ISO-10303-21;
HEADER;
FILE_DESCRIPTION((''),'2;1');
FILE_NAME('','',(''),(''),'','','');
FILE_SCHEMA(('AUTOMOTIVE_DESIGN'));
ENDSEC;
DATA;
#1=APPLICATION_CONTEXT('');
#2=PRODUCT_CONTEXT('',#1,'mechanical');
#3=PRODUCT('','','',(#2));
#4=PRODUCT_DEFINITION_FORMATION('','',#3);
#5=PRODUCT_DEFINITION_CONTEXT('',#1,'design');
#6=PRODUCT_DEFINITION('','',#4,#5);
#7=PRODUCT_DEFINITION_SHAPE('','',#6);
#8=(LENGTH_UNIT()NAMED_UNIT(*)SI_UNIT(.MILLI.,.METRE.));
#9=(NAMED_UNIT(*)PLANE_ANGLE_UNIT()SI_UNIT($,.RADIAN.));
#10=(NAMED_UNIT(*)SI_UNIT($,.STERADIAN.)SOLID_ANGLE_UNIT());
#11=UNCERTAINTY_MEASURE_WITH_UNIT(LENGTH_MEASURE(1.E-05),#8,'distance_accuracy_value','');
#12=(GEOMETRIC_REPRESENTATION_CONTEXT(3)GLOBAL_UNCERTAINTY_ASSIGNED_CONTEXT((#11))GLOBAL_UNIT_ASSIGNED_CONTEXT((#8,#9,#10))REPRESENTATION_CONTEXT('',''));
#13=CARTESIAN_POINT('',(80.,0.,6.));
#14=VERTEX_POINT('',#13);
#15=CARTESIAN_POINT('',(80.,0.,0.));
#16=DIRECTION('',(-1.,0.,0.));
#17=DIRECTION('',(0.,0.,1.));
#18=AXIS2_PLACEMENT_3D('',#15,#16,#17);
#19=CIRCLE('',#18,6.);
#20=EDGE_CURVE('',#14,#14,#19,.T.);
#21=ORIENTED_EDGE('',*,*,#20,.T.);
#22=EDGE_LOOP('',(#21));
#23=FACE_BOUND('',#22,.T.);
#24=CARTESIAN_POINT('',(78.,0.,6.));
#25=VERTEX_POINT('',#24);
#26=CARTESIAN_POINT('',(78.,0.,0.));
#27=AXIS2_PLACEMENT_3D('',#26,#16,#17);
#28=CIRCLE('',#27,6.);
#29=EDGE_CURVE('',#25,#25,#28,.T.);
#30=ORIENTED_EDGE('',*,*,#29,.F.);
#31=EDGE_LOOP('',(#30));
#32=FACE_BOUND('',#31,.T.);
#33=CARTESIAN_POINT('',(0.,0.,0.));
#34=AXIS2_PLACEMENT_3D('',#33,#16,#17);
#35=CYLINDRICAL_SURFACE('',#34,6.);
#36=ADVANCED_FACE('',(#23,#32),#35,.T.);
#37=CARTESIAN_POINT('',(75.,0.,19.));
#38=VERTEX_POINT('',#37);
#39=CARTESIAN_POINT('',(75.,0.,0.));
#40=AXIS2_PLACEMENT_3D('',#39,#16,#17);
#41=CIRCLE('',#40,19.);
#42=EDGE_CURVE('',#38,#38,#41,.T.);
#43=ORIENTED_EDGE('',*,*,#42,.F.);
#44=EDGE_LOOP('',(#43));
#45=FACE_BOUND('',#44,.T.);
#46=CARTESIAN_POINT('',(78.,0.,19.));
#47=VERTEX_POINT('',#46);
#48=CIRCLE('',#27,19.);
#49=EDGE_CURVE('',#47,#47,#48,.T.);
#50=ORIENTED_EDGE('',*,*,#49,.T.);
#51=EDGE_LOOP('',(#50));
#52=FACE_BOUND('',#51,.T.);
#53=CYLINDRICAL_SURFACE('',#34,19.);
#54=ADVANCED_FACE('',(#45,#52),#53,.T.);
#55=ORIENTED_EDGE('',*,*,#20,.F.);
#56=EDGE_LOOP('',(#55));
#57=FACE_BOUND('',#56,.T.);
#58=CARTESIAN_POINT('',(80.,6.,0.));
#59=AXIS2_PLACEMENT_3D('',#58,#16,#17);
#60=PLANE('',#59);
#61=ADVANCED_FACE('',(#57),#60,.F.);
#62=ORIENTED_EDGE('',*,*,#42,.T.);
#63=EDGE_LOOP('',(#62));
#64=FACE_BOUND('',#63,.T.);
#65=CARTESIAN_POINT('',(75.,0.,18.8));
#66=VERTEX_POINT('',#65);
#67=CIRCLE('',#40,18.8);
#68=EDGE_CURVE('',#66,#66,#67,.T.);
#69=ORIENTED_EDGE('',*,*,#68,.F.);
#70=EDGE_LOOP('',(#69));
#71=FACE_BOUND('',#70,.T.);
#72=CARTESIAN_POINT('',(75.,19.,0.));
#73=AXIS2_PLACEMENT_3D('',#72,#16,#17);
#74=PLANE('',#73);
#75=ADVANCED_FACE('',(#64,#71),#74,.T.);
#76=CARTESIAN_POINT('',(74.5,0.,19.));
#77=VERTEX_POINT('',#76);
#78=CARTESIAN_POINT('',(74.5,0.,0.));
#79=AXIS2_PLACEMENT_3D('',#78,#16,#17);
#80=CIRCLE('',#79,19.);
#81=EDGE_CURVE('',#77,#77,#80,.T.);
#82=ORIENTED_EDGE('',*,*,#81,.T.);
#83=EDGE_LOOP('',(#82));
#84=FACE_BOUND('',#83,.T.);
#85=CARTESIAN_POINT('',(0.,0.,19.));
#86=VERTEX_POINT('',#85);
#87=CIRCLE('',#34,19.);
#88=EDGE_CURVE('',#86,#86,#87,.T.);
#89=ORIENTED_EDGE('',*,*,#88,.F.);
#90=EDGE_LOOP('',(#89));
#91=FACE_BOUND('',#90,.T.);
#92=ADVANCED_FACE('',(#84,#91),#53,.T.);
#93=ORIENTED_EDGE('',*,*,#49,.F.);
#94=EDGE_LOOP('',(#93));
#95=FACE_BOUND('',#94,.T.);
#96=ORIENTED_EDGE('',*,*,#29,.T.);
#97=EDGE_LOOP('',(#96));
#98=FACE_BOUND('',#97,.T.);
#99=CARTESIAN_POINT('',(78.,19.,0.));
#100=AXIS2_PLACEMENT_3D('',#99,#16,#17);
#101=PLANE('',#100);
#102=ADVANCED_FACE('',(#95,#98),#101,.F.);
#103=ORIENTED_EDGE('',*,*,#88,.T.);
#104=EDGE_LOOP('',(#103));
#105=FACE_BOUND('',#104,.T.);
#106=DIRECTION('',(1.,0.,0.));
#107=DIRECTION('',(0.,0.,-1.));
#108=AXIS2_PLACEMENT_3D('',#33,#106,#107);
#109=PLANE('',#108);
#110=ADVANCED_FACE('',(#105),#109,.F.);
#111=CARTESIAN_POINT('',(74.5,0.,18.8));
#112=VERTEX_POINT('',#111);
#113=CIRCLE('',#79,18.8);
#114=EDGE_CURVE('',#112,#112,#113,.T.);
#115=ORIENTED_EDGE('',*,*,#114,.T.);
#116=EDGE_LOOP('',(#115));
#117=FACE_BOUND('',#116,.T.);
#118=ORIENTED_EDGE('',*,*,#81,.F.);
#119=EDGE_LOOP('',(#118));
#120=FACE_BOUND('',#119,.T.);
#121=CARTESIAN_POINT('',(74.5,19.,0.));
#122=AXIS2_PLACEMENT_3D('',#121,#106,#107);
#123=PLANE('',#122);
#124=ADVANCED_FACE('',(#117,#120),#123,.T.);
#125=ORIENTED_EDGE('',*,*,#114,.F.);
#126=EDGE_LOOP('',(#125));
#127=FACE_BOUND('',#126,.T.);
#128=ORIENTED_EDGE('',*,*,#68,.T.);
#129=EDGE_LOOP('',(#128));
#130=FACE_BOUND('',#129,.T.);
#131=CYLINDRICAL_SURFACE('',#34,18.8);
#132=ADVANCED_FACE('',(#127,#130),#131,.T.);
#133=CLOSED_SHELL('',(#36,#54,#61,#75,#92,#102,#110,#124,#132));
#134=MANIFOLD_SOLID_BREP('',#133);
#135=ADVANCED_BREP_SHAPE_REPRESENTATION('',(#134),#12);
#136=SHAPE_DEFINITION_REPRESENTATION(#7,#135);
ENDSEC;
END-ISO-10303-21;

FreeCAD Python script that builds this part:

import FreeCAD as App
import Part
import Sketcher

V = App.Vector
Q = App.Units.Quantity


def add_polygon(sketch, points):
    """Adds a closed chain of lines whose ends are joined by coincident constraints."""
    first, n = sketch.GeometryCount, len(points)
    for a, b in zip(points, points[1:] + points[:1]):
        sketch.addGeometry(Part.LineSegment(App.Vector(*a, 0), App.Vector(*b, 0)), False)
    for i in range(n):
        sketch.addConstraint(Sketcher.Constraint("Coincident", first + i, 2, first + (i + 1) % n, 1))

doc = App.newDocument("Part")
body = doc.addObject("PartDesign::Body", "Body")

sketch1 = body.newObject("Sketcher::SketchObject", "Sketch")
sketch1.AttachmentSupport = (doc.getObject("XY_Plane"), [""])
sketch1.MapMode = "FlatFace"
add_polygon(sketch1, [(0, 19), (0, 0), (80, 0), (80, 6), (78, 6), (78, 19)])
sketch1.addConstraint([
    Sketcher.Constraint("Vertical", 0),
    Sketcher.Constraint("Horizontal", 1),
    Sketcher.Constraint("Vertical", 2),
    Sketcher.Constraint("Horizontal", 3),
    Sketcher.Constraint("Vertical", 4),
    Sketcher.Constraint("Horizontal", 5),
    Sketcher.Constraint("Coincident", 0, 2, -1, 1),
    Sketcher.Constraint("DistanceX", 1, 1, 1, 2, Q("80 mm")),
    Sketcher.Constraint("DistanceX", 3, 2, 3, 1, Q("2 mm")),
    Sketcher.Constraint("DistanceY", 0, 2, 0, 1, Q("19 mm")),
    Sketcher.Constraint("DistanceY", 2, 1, 2, 2, Q("6 mm")),
])
revolution = body.newObject("PartDesign::Revolution", "Revolution")
revolution.Profile = sketch1
revolution.ReferenceAxis = (sketch1, ["H_Axis"])
revolution.Angle = 360

sketch2 = body.newObject("Sketcher::SketchObject", "Sketch001")
sketch2.AttachmentSupport = (doc.getObject("XY_Plane"), [""])
sketch2.MapMode = "FlatFace"
add_polygon(sketch2, [(74.5, 19), (74.5, 18.8), (75, 18.8), (75, 19)])
sketch2.addConstraint([
    Sketcher.Constraint("Vertical", 0),
    Sketcher.Constraint("Horizontal", 1),
    Sketcher.Constraint("Vertical", 2),
    Sketcher.Constraint("Horizontal", 3),
    Sketcher.Constraint("DistanceX", 1, 1, 1, 2, Q("0.5 mm")),
    Sketcher.Constraint("DistanceY", 0, 2, 0, 1, Q("0.2 mm")),
    Sketcher.Constraint("DistanceX", -1, 1, 1, 2, Q("75 mm")),
    Sketcher.Constraint("DistanceY", -1, 1, 2, 2, Q("19 mm")),
])
groove = body.newObject("PartDesign::Groove", "Groove")
groove.Profile = sketch2
groove.ReferenceAxis = (sketch2, ["H_Axis"])
groove.Angle = 360

doc.recompute()
